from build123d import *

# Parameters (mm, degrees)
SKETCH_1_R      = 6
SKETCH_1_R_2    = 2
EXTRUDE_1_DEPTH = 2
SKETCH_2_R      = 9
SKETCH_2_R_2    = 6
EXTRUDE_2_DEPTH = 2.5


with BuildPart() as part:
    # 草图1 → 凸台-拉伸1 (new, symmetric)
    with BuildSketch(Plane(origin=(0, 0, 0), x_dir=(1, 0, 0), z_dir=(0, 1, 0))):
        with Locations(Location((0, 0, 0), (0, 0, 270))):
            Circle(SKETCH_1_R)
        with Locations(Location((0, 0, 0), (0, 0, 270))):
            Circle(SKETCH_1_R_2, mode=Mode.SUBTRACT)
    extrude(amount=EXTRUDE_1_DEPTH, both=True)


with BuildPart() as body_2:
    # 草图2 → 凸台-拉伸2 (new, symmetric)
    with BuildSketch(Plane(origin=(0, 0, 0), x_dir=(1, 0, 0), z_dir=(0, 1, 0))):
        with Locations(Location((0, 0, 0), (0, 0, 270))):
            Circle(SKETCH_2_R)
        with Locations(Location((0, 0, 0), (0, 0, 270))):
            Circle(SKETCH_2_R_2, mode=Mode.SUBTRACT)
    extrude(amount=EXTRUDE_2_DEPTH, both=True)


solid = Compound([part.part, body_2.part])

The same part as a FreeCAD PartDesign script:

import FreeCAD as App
import Part
import Sketcher

doc = App.newDocument("Part")
params = doc.addObject("Spreadsheet::Sheet", "Params")
for row, (alias, value) in enumerate([
    ("sketch1_diameter", "12 mm"),
    ("sketch1_diameter2", "4 mm"),
    ("pad1_length", "4 mm"),
    ("sketch2_diameter", "18 mm"),
    ("sketch2_diameter2", "12 mm"),
    ("pad2_length", "5 mm"),
], start=1):
    params.set(f"A{row}", alias)
    params.set(f"B{row}", "=" + value)
    params.setAlias(f"B{row}", alias)

body = doc.addObject("PartDesign::Body", "Body")

# Sketch on XZ plane
sketch1 = body.newObject("Sketcher::SketchObject", "Sketch")
sketch1.AttachmentSupport = (doc.getObject("XZ_Plane"), [""])
sketch1.MapMode = "FlatFace"
sketch1.addGeometry(Part.Circle(App.Vector(0, 0, 0), App.Vector(0, 0, 1), 6), False)
sketch1.addGeometry(Part.Circle(App.Vector(0, 0, 0), App.Vector(0, 0, 1), 2), False)
sketch1.addConstraint(Sketcher.Constraint("Coincident", 0, 3, -1, 1))
sketch1.addConstraint(Sketcher.Constraint("Coincident", 1, 3, -1, 1))
sketch1.addConstraint(Sketcher.Constraint("Diameter", 0, 12.0))
sketch1.addConstraint(Sketcher.Constraint("Diameter", 1, 4.0))
sketch1.setExpression("Constraints[2]", "Params.sketch1_diameter")
sketch1.setExpression("Constraints[3]", "Params.sketch1_diameter2")
pad1 = body.newObject("PartDesign::Pad", "Pad")
pad1.Profile = sketch1
pad1.setExpression("Length", "Params.pad1_length")
pad1.Midplane = True
body2 = doc.addObject("PartDesign::Body", "Body001")

# Sketch on XZ plane
sketch2 = body2.newObject("Sketcher::SketchObject", "Sketch001")
sketch2.AttachmentSupport = (doc.getObject("XZ_Plane001"), [""])
sketch2.MapMode = "FlatFace"
sketch2.addGeometry(Part.Circle(App.Vector(0, 0, 0), App.Vector(0, 0, 1), 9), False)
sketch2.addGeometry(Part.Circle(App.Vector(0, 0, 0), App.Vector(0, 0, 1), 6), False)
sketch2.addConstraint(Sketcher.Constraint("Coincident", 0, 3, -1, 1))
sketch2.addConstraint(Sketcher.Constraint("Coincident", 1, 3, -1, 1))
sketch2.addConstraint(Sketcher.Constraint("Diameter", 0, 18.0))
sketch2.addConstraint(Sketcher.Constraint("Diameter", 1, 12.0))
sketch2.setExpression("Constraints[2]", "Params.sketch2_diameter")
sketch2.setExpression("Constraints[3]", "Params.sketch2_diameter2")
pad2 = body2.newObject("PartDesign::Pad", "Pad001")
pad2.Profile = sketch2
pad2.setExpression("Length", "Params.pad2_length")
pad2.Midplane = True

doc.recompute()
